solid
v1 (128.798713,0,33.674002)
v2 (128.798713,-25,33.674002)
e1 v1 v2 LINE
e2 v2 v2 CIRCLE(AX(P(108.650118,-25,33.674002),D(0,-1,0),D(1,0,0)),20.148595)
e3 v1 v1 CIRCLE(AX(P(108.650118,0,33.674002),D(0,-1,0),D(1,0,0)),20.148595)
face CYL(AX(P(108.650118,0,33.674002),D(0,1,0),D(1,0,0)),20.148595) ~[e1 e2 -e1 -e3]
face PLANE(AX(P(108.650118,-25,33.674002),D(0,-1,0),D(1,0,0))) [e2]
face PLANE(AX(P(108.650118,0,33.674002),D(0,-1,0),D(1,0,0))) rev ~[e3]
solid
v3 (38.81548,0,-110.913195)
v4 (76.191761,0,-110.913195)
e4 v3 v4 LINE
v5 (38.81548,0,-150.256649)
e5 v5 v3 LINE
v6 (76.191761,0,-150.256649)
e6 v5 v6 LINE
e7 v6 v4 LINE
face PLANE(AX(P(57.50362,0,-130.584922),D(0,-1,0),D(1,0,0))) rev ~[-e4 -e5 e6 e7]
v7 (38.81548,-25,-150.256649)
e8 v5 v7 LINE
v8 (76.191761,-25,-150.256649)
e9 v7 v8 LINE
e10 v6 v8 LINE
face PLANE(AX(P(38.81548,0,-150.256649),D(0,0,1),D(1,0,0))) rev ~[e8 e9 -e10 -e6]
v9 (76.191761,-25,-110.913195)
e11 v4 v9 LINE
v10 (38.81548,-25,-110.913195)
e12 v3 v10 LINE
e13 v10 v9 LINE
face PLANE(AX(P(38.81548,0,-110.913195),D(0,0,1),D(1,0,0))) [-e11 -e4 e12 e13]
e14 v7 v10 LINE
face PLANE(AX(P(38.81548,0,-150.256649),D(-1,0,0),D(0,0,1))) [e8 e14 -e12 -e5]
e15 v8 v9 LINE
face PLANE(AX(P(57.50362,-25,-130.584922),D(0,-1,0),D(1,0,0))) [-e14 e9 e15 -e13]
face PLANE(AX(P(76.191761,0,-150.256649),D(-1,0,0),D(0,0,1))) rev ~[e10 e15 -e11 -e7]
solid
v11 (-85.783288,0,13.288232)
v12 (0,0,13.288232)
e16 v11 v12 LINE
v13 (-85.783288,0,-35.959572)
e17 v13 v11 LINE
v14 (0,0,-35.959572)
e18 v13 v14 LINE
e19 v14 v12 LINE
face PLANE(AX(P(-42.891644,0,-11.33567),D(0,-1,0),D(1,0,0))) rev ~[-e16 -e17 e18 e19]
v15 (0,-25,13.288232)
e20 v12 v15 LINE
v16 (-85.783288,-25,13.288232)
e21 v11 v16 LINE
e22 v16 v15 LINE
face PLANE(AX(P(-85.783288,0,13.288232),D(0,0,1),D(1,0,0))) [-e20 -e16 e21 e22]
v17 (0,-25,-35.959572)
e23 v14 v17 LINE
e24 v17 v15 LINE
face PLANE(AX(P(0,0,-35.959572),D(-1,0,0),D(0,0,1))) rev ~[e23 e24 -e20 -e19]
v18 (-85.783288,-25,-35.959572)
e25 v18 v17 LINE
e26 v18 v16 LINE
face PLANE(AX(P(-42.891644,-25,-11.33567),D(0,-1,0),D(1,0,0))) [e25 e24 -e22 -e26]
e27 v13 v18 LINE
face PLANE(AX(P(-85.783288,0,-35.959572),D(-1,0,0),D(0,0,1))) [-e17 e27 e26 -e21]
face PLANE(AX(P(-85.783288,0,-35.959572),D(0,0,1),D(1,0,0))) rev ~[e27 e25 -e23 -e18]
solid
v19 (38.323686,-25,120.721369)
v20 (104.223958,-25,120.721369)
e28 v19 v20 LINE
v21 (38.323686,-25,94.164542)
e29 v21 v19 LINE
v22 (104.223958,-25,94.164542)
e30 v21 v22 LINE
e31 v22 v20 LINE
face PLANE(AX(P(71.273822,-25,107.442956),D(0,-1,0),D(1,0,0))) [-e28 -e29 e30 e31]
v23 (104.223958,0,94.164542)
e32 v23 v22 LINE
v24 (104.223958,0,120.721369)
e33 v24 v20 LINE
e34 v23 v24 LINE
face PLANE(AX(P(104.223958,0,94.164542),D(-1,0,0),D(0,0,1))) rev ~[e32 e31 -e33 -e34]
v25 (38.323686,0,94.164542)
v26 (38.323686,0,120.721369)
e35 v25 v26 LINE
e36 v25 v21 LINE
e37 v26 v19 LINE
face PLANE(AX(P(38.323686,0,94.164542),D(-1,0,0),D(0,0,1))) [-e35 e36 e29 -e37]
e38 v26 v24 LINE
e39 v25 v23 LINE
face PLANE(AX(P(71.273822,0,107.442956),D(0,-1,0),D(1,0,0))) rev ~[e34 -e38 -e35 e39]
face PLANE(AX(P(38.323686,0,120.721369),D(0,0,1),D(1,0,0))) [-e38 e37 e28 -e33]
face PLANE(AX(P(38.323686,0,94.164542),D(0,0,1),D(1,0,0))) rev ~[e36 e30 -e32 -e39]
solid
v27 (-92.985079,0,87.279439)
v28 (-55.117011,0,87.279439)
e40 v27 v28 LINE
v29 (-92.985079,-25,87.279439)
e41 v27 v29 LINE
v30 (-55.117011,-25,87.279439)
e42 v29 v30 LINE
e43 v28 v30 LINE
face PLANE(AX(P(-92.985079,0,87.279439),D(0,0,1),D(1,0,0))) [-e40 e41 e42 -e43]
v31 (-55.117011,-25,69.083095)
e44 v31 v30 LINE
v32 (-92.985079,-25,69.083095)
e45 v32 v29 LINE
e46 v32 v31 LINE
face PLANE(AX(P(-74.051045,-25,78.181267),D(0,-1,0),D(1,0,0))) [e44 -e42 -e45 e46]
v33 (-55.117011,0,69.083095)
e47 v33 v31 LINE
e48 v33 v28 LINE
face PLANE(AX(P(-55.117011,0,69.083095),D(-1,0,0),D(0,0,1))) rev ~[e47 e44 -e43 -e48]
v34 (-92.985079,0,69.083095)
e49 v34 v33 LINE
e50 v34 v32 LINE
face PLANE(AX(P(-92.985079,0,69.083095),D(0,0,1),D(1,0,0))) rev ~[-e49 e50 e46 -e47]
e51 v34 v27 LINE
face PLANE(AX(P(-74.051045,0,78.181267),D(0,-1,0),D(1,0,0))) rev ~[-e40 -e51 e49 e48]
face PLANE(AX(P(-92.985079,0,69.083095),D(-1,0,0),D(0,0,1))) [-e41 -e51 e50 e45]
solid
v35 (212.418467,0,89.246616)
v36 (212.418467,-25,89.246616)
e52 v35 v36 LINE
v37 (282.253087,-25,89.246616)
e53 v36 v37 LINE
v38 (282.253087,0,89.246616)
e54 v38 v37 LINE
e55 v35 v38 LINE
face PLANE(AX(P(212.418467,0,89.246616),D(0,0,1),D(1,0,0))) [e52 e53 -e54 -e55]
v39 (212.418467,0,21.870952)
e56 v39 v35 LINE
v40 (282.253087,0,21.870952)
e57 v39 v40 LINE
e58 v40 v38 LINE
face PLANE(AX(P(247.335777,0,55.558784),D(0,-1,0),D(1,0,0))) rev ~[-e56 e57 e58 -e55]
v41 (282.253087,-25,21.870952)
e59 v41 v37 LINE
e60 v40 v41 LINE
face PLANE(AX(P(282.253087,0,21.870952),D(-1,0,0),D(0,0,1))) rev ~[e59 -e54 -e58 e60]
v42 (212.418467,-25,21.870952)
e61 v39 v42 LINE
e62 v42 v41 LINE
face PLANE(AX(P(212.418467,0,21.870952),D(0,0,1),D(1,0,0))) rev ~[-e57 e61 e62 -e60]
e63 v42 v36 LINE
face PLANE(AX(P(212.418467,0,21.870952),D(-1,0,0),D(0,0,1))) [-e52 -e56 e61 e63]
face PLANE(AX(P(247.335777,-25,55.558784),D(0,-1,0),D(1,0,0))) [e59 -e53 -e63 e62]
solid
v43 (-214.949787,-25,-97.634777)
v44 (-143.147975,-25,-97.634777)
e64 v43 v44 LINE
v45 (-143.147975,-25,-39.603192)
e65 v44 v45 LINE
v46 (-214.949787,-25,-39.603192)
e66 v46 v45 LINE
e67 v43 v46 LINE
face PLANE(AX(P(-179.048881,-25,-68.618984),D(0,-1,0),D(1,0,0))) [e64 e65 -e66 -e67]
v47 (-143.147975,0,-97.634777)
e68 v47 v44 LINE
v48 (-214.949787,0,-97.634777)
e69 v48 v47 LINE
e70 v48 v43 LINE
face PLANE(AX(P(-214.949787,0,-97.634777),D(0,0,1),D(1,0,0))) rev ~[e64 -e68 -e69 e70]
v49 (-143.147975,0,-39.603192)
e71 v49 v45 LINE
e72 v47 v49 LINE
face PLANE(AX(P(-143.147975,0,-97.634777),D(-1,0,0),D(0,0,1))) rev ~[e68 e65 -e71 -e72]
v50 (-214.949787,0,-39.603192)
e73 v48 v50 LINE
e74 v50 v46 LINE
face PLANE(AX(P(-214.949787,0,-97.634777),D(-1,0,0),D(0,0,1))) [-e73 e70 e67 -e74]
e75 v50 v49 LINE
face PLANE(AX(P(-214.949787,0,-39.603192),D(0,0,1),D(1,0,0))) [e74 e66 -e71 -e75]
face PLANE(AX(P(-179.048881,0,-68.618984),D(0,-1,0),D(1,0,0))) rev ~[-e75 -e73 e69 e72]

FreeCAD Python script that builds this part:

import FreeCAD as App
import Part
import Sketcher
from FreeCAD import Vector

doc = App.newDocument("Part")
body = doc.addObject("PartDesign::Body", "Body")

# Sketch on XZ plane
sketch1 = body.newObject("Sketcher::SketchObject", "Sketch")
sketch1.AttachmentSupport = (doc.getObject("XZ_Plane"), [""])
sketch1.MapMode = "FlatFace"
sketch1.addGeometry([
    Part.LineSegment(Vector(-85.783288, 13.288232, 0), Vector(-85.783288, -35.959572, 0)),
    Part.LineSegment(Vector(-85.783288, -35.959572, 0), Vector(0, -35.959572, 0)),
    Part.LineSegment(Vector(0, -35.959572, 0), Vector(0, 13.288232, 0)),
    Part.LineSegment(Vector(0, 13.288232, 0), Vector(-85.783288, 13.288232, 0)),
], False)
sketch1.addConstraint([
    Sketcher.Constraint("Coincident", 0, 2, 1, 1),
    Sketcher.Constraint("Coincident", 1, 2, 2, 1),
    Sketcher.Constraint("Coincident", 2, 2, 3, 1),
    Sketcher.Constraint("Coincident", 3, 2, 0, 1),
    Sketcher.Constraint("Vertical", 0),
    Sketcher.Constraint("Horizontal", 1),
    Sketcher.Constraint("Vertical", 2),
    Sketcher.Constraint("Horizontal", 3),
    Sketcher.Constraint("PointOnObject", 1, 2, -2),
    Sketcher.Constraint("DistanceX", 1, 1, 1, 2, 85.783288),
    Sketcher.Constraint("DistanceY", 0, 2, 0, 1, 49.247804),
    Sketcher.Constraint("DistanceY", 0, 2, -1, 1, 35.959572),
])
pad1 = body.newObject("PartDesign::Pad", "Pad")
pad1.Profile = sketch1
pad1.Length = 25
body2 = doc.addObject("PartDesign::Body", "Body001")
body2.AllowCompound = True

# Sketch on XZ plane
sketch2 = body2.newObject("Sketcher::SketchObject", "Sketch001")
sketch2.AttachmentSupport = (doc.getObject("XZ_Plane001"), [""])
sketch2.MapMode = "FlatFace"
sketch2.addGeometry([
    Part.Circle(Vector(108.650118, 33.674002, 0), Vector(0, 0, 1), 20.148595),  # 0
    Part.LineSegment(Vector(-92.985079, 87.279439, 0), Vector(-92.985079, 69.083095, 0)),  # 1
    Part.LineSegment(Vector(-92.985079, 69.083095, 0), Vector(-55.117011, 69.083095, 0)),  # 2
    Part.LineSegment(Vector(-55.117011, 69.083095, 0), Vector(-55.117011, 87.279439, 0)),  # 3
    Part.LineSegment(Vector(-55.117011, 87.279439, 0), Vector(-92.985079, 87.279439, 0)),  # 4
    Part.LineSegment(Vector(38.323686, 120.721369, 0), Vector(38.323686, 94.164542, 0)),  # 5
    Part.LineSegment(Vector(38.323686, 94.164542, 0), Vector(104.223958, 94.164542, 0)),  # 6
    Part.LineSegment(Vector(104.223958, 94.164542, 0), Vector(104.223958, 120.721369, 0)),  # 7
    Part.LineSegment(Vector(104.223958, 120.721369, 0), Vector(38.323686, 120.721369, 0)),  # 8
    Part.LineSegment(Vector(212.418467, 89.246616, 0), Vector(212.418467, 21.870952, 0)),  # 9
    Part.LineSegment(Vector(212.418467, 21.870952, 0), Vector(282.253087, 21.870952, 0)),  # 10
    Part.LineSegment(Vector(282.253087, 21.870952, 0), Vector(282.253087, 89.246616, 0)),  # 11
    Part.LineSegment(Vector(282.253087, 89.246616, 0), Vector(212.418467, 89.246616, 0)),  # 12
    Part.LineSegment(Vector(38.81548, -110.913195, 0), Vector(38.81548, -150.256649, 0)),  # 13
    Part.LineSegment(Vector(38.81548, -150.256649, 0), Vector(76.191761, -150.256649, 0)),  # 14
    Part.LineSegment(Vector(76.191761, -150.256649, 0), Vector(76.191761, -110.913195, 0)),  # 15
    Part.LineSegment(Vector(76.191761, -110.913195, 0), Vector(38.81548, -110.913195, 0)),  # 16
    Part.LineSegment(Vector(-214.949787, -39.603192, 0), Vector(-214.949787, -97.634777, 0)),  # 17
    Part.LineSegment(Vector(-214.949787, -97.634777, 0), Vector(-143.147975, -97.634777, 0)),  # 18
    Part.LineSegment(Vector(-143.147975, -97.634777, 0), Vector(-143.147975, -39.603192, 0)),  # 19
    Part.LineSegment(Vector(-143.147975, -39.603192, 0), Vector(-214.949787, -39.603192, 0)),  # 20
], False)
sketch2.addConstraint([
    Sketcher.Constraint("Coincident", 1, 2, 2, 1),
    Sketcher.Constraint("Coincident", 2, 2, 3, 1),
    Sketcher.Constraint("Coincident", 3, 2, 4, 1),
    Sketcher.Constraint("Coincident", 4, 2, 1, 1),
    Sketcher.Constraint("Coincident", 5, 2, 6, 1),
    Sketcher.Constraint("Coincident", 6, 2, 7, 1),
    Sketcher.Constraint("Coincident", 7, 2, 8, 1),
    Sketcher.Constraint("Coincident", 8, 2, 5, 1),
    Sketcher.Constraint("Coincident", 9, 2, 10, 1),
    Sketcher.Constraint("Coincident", 10, 2, 11, 1),
    Sketcher.Constraint("Coincident", 11, 2, 12, 1),
    Sketcher.Constraint("Coincident", 12, 2, 9, 1),
    Sketcher.Constraint("Coincident", 13, 2, 14, 1),
    Sketcher.Constraint("Coincident", 14, 2, 15, 1),
    Sketcher.Constraint("Coincident", 15, 2, 16, 1),
    Sketcher.Constraint("Coincident", 16, 2, 13, 1),
    Sketcher.Constraint("Coincident", 17, 2, 18, 1),
    Sketcher.Constraint("Coincident", 18, 2, 19, 1),
    Sketcher.Constraint("Coincident", 19, 2, 20, 1),
    Sketcher.Constraint("Coincident", 20, 2, 17, 1),
    Sketcher.Constraint("Vertical", 1),
    Sketcher.Constraint("Horizontal", 2),
    Sketcher.Constraint("Vertical", 3),
    Sketcher.Constraint("Horizontal", 4),
    Sketcher.Constraint("Vertical", 5),
    Sketcher.Constraint("Horizontal", 6),
    Sketcher.Constraint("Vertical", 7),
    Sketcher.Constraint("Horizontal", 8),
    Sketcher.Constraint("Vertical", 9),
    Sketcher.Constraint("Horizontal", 10),
    Sketcher.Constraint("Vertical", 11),
    Sketcher.Constraint("Horizontal", 12),
    Sketcher.Constraint("Vertical", 13),
    Sketcher.Constraint("Horizontal", 14),
    Sketcher.Constraint("Vertical", 15),
    Sketcher.Constraint("Horizontal", 16),
    Sketcher.Constraint("Vertical", 17),
    Sketcher.Constraint("Horizontal", 18),
    Sketcher.Constraint("Vertical", 19),
    Sketcher.Constraint("Horizontal", 20),
    Sketcher.Constraint("Diameter", 0, 40.29719),
    Sketcher.Constraint("DistanceX", 10, 1, 10, 2, 69.83462),
    Sketcher.Constraint("DistanceX", 14, 1, 14, 2, 37.376281),
    Sketcher.Constraint("DistanceX", 18, 1, 18, 2, 71.801812),
    Sketcher.Constraint("DistanceX", 5, 2, 10, 2, 243.929401),
    Sketcher.Constraint("DistanceY", 13, 2, 9, 2, 172.127601),
    Sketcher.Constraint("DistanceX", 2, 1, 2, 2, 37.868068),
    Sketcher.Constraint("DistanceX", 6, 1, 6, 2, 65.900273),
    Sketcher.Constraint("DistanceY", 1, 2, 1, 1, 18.196344),
    Sketcher.Constraint("DistanceY", 5, 2, 5, 1, 26.556827),
    Sketcher.Constraint("DistanceY", 9, 2, 9, 1, 67.375664),
    Sketcher.Constraint("DistanceY", 13, 2, 13, 1, 39.343454),
    Sketcher.Constraint("DistanceY", 17, 2, 17, 1, 58.031585),
    Sketcher.Constraint("DistanceX", -1, 1, 0, 3, 108.650118),
    Sketcher.Constraint("DistanceX", 1, 2, -1, 1, 92.985079),
    Sketcher.Constraint("DistanceY", -1, 1, 3, 2, 87.279439),
    Sketcher.Constraint("DistanceX", -1, 1, 6, 2, 104.223958),
    Sketcher.Constraint("DistanceY", -1, 1, 7, 2, 120.721369),
    Sketcher.Constraint("DistanceY", -1, 1, 9, 2, 21.870952),
    Sketcher.Constraint("DistanceX", -1, 1, 13, 2, 38.81548),
    Sketcher.Constraint("DistanceY", 19, 2, -1, 1, 39.603192),
    Sketcher.Constraint("DistanceY", 0, 3, 5, 2, 60.49054),
    Sketcher.Constraint("DistanceX", 17, 2, -1, 1, 214.949787),
])
pad2 = body2.newObject("PartDesign::Pad", "Pad001")
pad2.Profile = sketch2
pad2.Length = 25

doc.recompute()
